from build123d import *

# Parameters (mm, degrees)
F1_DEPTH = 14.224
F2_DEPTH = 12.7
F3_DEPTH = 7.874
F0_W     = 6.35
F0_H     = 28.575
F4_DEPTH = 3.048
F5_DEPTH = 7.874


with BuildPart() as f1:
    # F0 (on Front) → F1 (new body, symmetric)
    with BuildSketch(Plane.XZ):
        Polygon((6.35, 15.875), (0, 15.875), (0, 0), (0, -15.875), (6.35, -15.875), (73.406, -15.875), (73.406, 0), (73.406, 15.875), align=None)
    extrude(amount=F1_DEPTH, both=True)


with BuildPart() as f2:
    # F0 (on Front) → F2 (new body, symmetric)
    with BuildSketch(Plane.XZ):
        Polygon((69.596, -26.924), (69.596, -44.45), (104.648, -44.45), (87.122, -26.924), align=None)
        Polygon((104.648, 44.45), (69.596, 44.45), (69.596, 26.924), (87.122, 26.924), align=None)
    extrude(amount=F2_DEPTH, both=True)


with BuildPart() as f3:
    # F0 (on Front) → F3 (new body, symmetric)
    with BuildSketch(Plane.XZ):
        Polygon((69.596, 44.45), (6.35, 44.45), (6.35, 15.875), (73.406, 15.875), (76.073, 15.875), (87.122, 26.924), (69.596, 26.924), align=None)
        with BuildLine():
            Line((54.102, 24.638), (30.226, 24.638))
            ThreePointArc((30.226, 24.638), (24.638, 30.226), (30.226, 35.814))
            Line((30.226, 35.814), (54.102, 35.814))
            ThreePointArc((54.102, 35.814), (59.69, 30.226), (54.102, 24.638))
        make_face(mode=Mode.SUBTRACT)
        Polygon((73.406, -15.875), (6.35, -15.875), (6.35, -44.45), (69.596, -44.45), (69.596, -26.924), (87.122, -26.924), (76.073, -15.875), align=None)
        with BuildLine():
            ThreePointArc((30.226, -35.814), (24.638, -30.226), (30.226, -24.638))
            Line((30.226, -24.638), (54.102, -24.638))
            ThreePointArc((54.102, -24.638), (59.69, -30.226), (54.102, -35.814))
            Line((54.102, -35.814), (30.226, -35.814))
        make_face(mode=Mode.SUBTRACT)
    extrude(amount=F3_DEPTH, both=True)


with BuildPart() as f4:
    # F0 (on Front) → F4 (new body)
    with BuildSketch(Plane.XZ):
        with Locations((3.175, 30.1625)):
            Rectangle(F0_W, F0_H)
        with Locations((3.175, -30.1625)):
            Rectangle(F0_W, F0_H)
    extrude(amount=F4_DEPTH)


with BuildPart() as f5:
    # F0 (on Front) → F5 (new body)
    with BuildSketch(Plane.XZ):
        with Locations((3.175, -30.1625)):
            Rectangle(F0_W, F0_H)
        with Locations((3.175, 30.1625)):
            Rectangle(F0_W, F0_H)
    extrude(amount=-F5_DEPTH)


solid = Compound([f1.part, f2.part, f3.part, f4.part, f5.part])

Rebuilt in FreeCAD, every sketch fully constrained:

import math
import FreeCAD as App
import Part
import Sketcher
Q = App.Units.Quantity

doc = App.newDocument("Part")
params = doc.addObject("Spreadsheet::Sheet", "Params")
for row, (alias, value) in enumerate([
    ("sketch1_width", "2.89 in"),
    ("sketch1_height", "1.25 in"),
    ("pad1_length", "1.12 in"),
    ("sketch2_width", "1.38 in"),
    ("pad2_length", "1 in"),
    ("sketch3_radius", "0.22 in"),
    ("sketch3_width", "2.49 in"),
    ("sketch3_width2", "0.69 in"),
    ("sketch3_width3", "0.94 in"),
    ("sketch3_width4", "2.745 in"),
    ("pad3_length", "0.62 in"),
    ("sketch4_width", "0.25 in"),
    ("sketch4_height", "1.125 in"),
    ("pad4_length", "0.12 in"),
    ("sketch5_width", "0.25 in"),
    ("sketch5_height", "1.125 in"),
    ("pad5_length", "0.31 in"),
], start=1):
    params.set(f"A{row}", alias)
    params.set(f"B{row}", "=" + value)
    params.setAlias(f"B{row}", alias)

body = doc.addObject("PartDesign::Body", "Body")

# Sketch on XZ plane
sketch1 = body.newObject("Sketcher::SketchObject", "Sketch")
sketch1.AttachmentSupport = (doc.getObject("XZ_Plane"), [""])
sketch1.MapMode = "FlatFace"
sketch1.addGeometry([
    Part.LineSegment(App.Vector(0, 16, 0), App.Vector(0, -16, 0)),
    Part.LineSegment(App.Vector(0, -16, 0), App.Vector(73, -16, 0)),
    Part.LineSegment(App.Vector(73, -16, 0), App.Vector(73, 16, 0)),
    Part.LineSegment(App.Vector(73, 16, 0), App.Vector(0, 16, 0)),
], False)
sketch1.addConstraint([
    Sketcher.Constraint("Coincident", 0, 2, 1, 1),
    Sketcher.Constraint("Coincident", 1, 2, 2, 1),
    Sketcher.Constraint("Coincident", 2, 2, 3, 1),
    Sketcher.Constraint("Coincident", 3, 2, 0, 1),
    Sketcher.Constraint("Vertical", 0),
    Sketcher.Constraint("Horizontal", 1),
    Sketcher.Constraint("Vertical", 2),
    Sketcher.Constraint("Horizontal", 3),
    Sketcher.Constraint("Symmetric", 0, 2, 3, 2, -1, 1),
    Sketcher.Constraint("DistanceX", 1, 1, 1, 2, Q("2.89 in")),
    Sketcher.Constraint("DistanceY", 0, 2, 0, 1, Q("1.25 in")),
])
sketch1.setExpression("Constraints[9]", "Params.sketch1_width")
sketch1.setExpression("Constraints[10]", "Params.sketch1_height")
pad1 = body.newObject("PartDesign::Pad", "Pad")
pad1.Profile = sketch1
pad1.setExpression("Length", "Params.pad1_length")
pad1.Midplane = True
body2 = doc.addObject("PartDesign::Body", "Body001")
body2.AllowCompound = True

# Sketch on XZ plane
sketch2 = body2.newObject("Sketcher::SketchObject", "Sketch001")
sketch2.AttachmentSupport = (doc.getObject("XZ_Plane001"), [""])
sketch2.MapMode = "FlatFace"
sketch2.addGeometry([
    Part.LineSegment(App.Vector(70, -27, 0), App.Vector(70, -44, 0)),  # 0
    Part.LineSegment(App.Vector(70, -44, 0), App.Vector(105, -44, 0)),  # 1
    Part.LineSegment(App.Vector(105, -44, 0), App.Vector(87, -27, 0)),  # 2
    Part.LineSegment(App.Vector(87, -27, 0), App.Vector(70, -27, 0)),  # 3
    Part.LineSegment(App.Vector(105, 44, 0), App.Vector(70, 44, 0)),  # 4
    Part.LineSegment(App.Vector(70, 44, 0), App.Vector(70, 27, 0)),  # 5
    Part.LineSegment(App.Vector(70, 27, 0), App.Vector(87, 27, 0)),  # 6
    Part.LineSegment(App.Vector(87, 27, 0), App.Vector(105, 44, 0)),  # 7
], False)
sketch2.addConstraint([
    Sketcher.Constraint("Coincident", 0, 2, 1, 1),
    Sketcher.Constraint("Coincident", 1, 2, 2, 1),
    Sketcher.Constraint("Coincident", 2, 2, 3, 1),
    Sketcher.Constraint("Coincident", 3, 2, 0, 1),
    Sketcher.Constraint("Coincident", 4, 2, 5, 1),
    Sketcher.Constraint("Coincident", 5, 2, 6, 1),
    Sketcher.Constraint("Coincident", 6, 2, 7, 1),
    Sketcher.Constraint("Coincident", 7, 2, 4, 1),
    Sketcher.Constraint("Vertical", 0),
    Sketcher.Constraint("Horizontal", 1),
    Sketcher.Constraint("Horizontal", 3),
    Sketcher.Constraint("Horizontal", 4),
    Sketcher.Constraint("Vertical", 5),
    Sketcher.Constraint("Horizontal", 6),
    Sketcher.Constraint("Symmetric", 0, 2, 4, 2, -1),
    Sketcher.Constraint("Symmetric", 2, 2, 6, 2, -1),
    Sketcher.Constraint("Perpendicular", 2, 7),
    Sketcher.Constraint("Vertical", 1, 2, 7, 2),
    Sketcher.Constraint("Equal", 6, 0),
    Sketcher.Constraint("DistanceX", 1, 1, 1, 2, Q("1.38 in")),
    Sketcher.Constraint("DistanceY", 0, 2, 4, 2, Q("3.5 in")),
    Sketcher.Constraint("DistanceX", -1, 1, 0, 2, Q("2.74 in")),
])
sketch2.setExpression("Constraints[19]", "Params.sketch2_width")
pad2 = body2.newObject("PartDesign::Pad", "Pad001")
pad2.Profile = sketch2
pad2.setExpression("Length", "Params.pad2_length")
pad2.Midplane = True
body3 = doc.addObject("PartDesign::Body", "Body002")
body3.AllowCompound = True

# Sketch on XZ plane
sketch3 = body3.newObject("Sketcher::SketchObject", "Sketch002")
sketch3.AttachmentSupport = (doc.getObject("XZ_Plane002"), [""])
sketch3.MapMode = "FlatFace"
sketch3.addGeometry([
    Part.LineSegment(App.Vector(70, 44, 0), App.Vector(6, 44, 0)),  # 0
    Part.LineSegment(App.Vector(6, 44, 0), App.Vector(6, 16, 0)),  # 1
    Part.LineSegment(App.Vector(6, 16, 0), App.Vector(76, 16, 0)),  # 2
    Part.LineSegment(App.Vector(76, 16, 0), App.Vector(87, 27, 0)),  # 3
    Part.LineSegment(App.Vector(87, 27, 0), App.Vector(70, 27, 0)),  # 4
    Part.LineSegment(App.Vector(70, 27, 0), App.Vector(70, 44, 0)),  # 5
    Part.ArcOfCircle(Part.Circle(App.Vector(54, 30, 0), App.Vector(0, 0, 1), 6), math.radians(-90), math.radians(90)),  # 6
    Part.LineSegment(App.Vector(54, 25, 0), App.Vector(30, 25, 0)),  # 7
    Part.ArcOfCircle(Part.Circle(App.Vector(30, 30, 0), App.Vector(0, 0, 1), 6), math.radians(90), math.radians(270)),  # 8
    Part.LineSegment(App.Vector(30, 36, 0), App.Vector(54, 36, 0)),  # 9
    Part.LineSegment(App.Vector(6, -16, 0), App.Vector(6, -44, 0)),  # 10
    Part.LineSegment(App.Vector(6, -44, 0), App.Vector(70, -44, 0)),  # 11
    Part.LineSegment(App.Vector(70, -44, 0), App.Vector(70, -27, 0)),  # 12
    Part.LineSegment(App.Vector(70, -27, 0), App.Vector(87, -27, 0)),  # 13
    Part.LineSegment(App.Vector(87, -27, 0), App.Vector(76, -16, 0)),  # 14
    Part.LineSegment(App.Vector(76, -16, 0), App.Vector(6, -16, 0)),  # 15
    Part.LineSegment(App.Vector(54, -36, 0), App.Vector(30, -36, 0)),  # 16
    Part.ArcOfCircle(Part.Circle(App.Vector(30, -30, 0), App.Vector(0, 0, 1), 6), math.radians(90), math.radians(270)),  # 17
    Part.LineSegment(App.Vector(30, -25, 0), App.Vector(54, -25, 0)),  # 18
    Part.ArcOfCircle(Part.Circle(App.Vector(54, -30, 0), App.Vector(0, 0, 1), 6), math.radians(-90), math.radians(90)),  # 19
], False)
sketch3.addConstraint([
    Sketcher.Constraint("Coincident", 0, 2, 1, 1),
    Sketcher.Constraint("Coincident", 1, 2, 2, 1),
    Sketcher.Constraint("Coincident", 2, 2, 3, 1),
    Sketcher.Constraint("Coincident", 3, 2, 4, 1),
    Sketcher.Constraint("Coincident", 4, 2, 5, 1),
    Sketcher.Constraint("Coincident", 5, 2, 0, 1),
    Sketcher.Constraint("Tangent", 6, 1, 7, 1),
    Sketcher.Constraint("Tangent", 7, 2, 8, 2),
    Sketcher.Constraint("Tangent", 8, 1, 9, 1),
    Sketcher.Constraint("Tangent", 9, 2, 6, 2),
    Sketcher.Constraint("Coincident", 10, 2, 11, 1),
    Sketcher.Constraint("Coincident", 11, 2, 12, 1),
    Sketcher.Constraint("Coincident", 12, 2, 13, 1),
    Sketcher.Constraint("Coincident", 13, 2, 14, 1),
    Sketcher.Constraint("Coincident", 14, 2, 15, 1),
    Sketcher.Constraint("Coincident", 15, 2, 10, 1),
    Sketcher.Constraint("Tangent", 16, 2, 17, 2),
    Sketcher.Constraint("Tangent", 17, 1, 18, 1),
    Sketcher.Constraint("Tangent", 18, 2, 19, 2),
    Sketcher.Constraint("Tangent", 19, 1, 16, 1),
    Sketcher.Constraint("Horizontal", 0),
    Sketcher.Constraint("Vertical", 1),
    Sketcher.Constraint("Horizontal", 2),
    Sketcher.Constraint("Horizontal", 4),
    Sketcher.Constraint("Vertical", 5),
    Sketcher.Constraint("Horizontal", 7),
    Sketcher.Constraint("Horizontal", 9),
    Sketcher.Constraint("Vertical", 10),
    Sketcher.Constraint("Horizontal", 11),
    Sketcher.Constraint("Vertical", 12),
    Sketcher.Constraint("Horizontal", 13),
    Sketcher.Constraint("Horizontal", 15),
    Sketcher.Constraint("Horizontal", 16),
    Sketcher.Constraint("Horizontal", 18),
    Sketcher.Constraint("Equal", 8, 17),
    Sketcher.Constraint("Symmetric", 8, 3, 17, 3, -1),
    Sketcher.Constraint("Symmetric", 0, 2, 10, 2, -1),
    Sketcher.Constraint("Symmetric", 4, 2, 12, 2, -1),
    Sketcher.Constraint("Symmetric", 2, 2, 14, 2, -1),
    Sketcher.Constraint("Perpendicular", 3, 14),
    Sketcher.Constraint("Vertical", 6, 3, 19, 3),
    Sketcher.Constraint("Vertical", 3, 2, 13, 2),
    Sketcher.Constraint("Equal", 13, 5),
    Sketcher.Constraint("Radius", 6, Q("0.22 in")),
    Sketcher.Constraint("DistanceX", 0, 2, 0, 1, Q("2.49 in")),
    Sketcher.Constraint("DistanceX", 4, 2, 4, 1, Q("0.69 in")),
    Sketcher.Constraint("DistanceX", 7, 2, 7, 1, Q("0.94 in")),
    Sketcher.Constraint("DistanceX", 6, 3, 3, 2, Q("1.3 in")),
    Sketcher.Constraint("DistanceX", 2, 1, 2, 2, Q("2.745 in")),
    Sketcher.Constraint("DistanceX", -1, 1, 6, 3, Q("2.13 in")),
    Sketcher.Constraint("DistanceY", -1, 1, 6, 3, Q("1.19 in")),
    Sketcher.Constraint("DistanceY", -1, 1, 0, 2, Q("1.75 in")),
])
sketch3.setExpression("Constraints[43]", "Params.sketch3_radius")
sketch3.setExpression("Constraints[44]", "Params.sketch3_width")
sketch3.setExpression("Constraints[45]", "Params.sketch3_width2")
sketch3.setExpression("Constraints[46]", "Params.sketch3_width3")
sketch3.setExpression("Constraints[48]", "Params.sketch3_width4")
pad3 = body3.newObject("PartDesign::Pad", "Pad002")
pad3.Profile = sketch3
pad3.setExpression("Length", "Params.pad3_length")
pad3.Midplane = True
body4 = doc.addObject("PartDesign::Body", "Body003")
body4.AllowCompound = True

# Sketch on XZ plane
sketch4 = body4.newObject("Sketcher::SketchObject", "Sketch003")
sketch4.AttachmentSupport = (doc.getObject("XZ_Plane003"), [""])
sketch4.MapMode = "FlatFace"
sketch4.addGeometry([
    Part.LineSegment(App.Vector(0, 44, 0), App.Vector(0, 16, 0)),  # 0
    Part.LineSegment(App.Vector(0, 16, 0), App.Vector(6, 16, 0)),  # 1
    Part.LineSegment(App.Vector(6, 16, 0), App.Vector(6, 44, 0)),  # 2
    Part.LineSegment(App.Vector(6, 44, 0), App.Vector(0, 44, 0)),  # 3
    Part.LineSegment(App.Vector(0, -16, 0), App.Vector(0, -44, 0)),  # 4
    Part.LineSegment(App.Vector(0, -44, 0), App.Vector(6, -44, 0)),  # 5
    Part.LineSegment(App.Vector(6, -44, 0), App.Vector(6, -16, 0)),  # 6
    Part.LineSegment(App.Vector(6, -16, 0), App.Vector(0, -16, 0)),  # 7
], False)
sketch4.addConstraint([
    Sketcher.Constraint("Coincident", 0, 2, 1, 1),
    Sketcher.Constraint("Coincident", 1, 2, 2, 1),
    Sketcher.Constraint("Coincident", 2, 2, 3, 1),
    Sketcher.Constraint("Coincident", 3, 2, 0, 1),
    Sketcher.Constraint("Coincident", 4, 2, 5, 1),
    Sketcher.Constraint("Coincident", 5, 2, 6, 1),
    Sketcher.Constraint("Coincident", 6, 2, 7, 1),
    Sketcher.Constraint("Coincident", 7, 2, 4, 1),
    Sketcher.Constraint("Vertical", 0),
    Sketcher.Constraint("Horizontal", 1),
    Sketcher.Constraint("Vertical", 2),
    Sketcher.Constraint("Horizontal", 3),
    Sketcher.Constraint("Vertical", 4),
    Sketcher.Constraint("Horizontal", 5),
    Sketcher.Constraint("Vertical", 6),
    Sketcher.Constraint("Horizontal", 7),
    Sketcher.Constraint("Symmetric", 3, 2, 4, 2, -1, 1),
    Sketcher.Constraint("Symmetric", 1, 2, 6, 2, -1),
    Sketcher.Constraint("PointOnObject", 0, 2, -2),
    Sketcher.Constraint("DistanceX", 1, 1, 1, 2, Q("0.25 in")),
    Sketcher.Constraint("DistanceY", 4, 2, 3, 2, Q("3.5 in")),
    Sketcher.Constraint("DistanceY", 0, 2, 0, 1, Q("1.125 in")),
])
sketch4.setExpression("Constraints[19]", "Params.sketch4_width")
sketch4.setExpression("Constraints[21]", "Params.sketch4_height")
pad4 = body4.newObject("PartDesign::Pad", "Pad003")
pad4.Profile = sketch4
pad4.setExpression("Length", "Params.pad4_length")
body5 = doc.addObject("PartDesign::Body", "Body004")
body5.AllowCompound = True

# Sketch on XZ plane
sketch5 = body5.newObject("Sketcher::SketchObject", "Sketch004")
sketch5.AttachmentSupport = (doc.getObject("XZ_Plane004"), [""])
sketch5.MapMode = "FlatFace"
sketch5.addGeometry([
    Part.LineSegment(App.Vector(0, -16, 0), App.Vector(0, -44, 0)),  # 0
    Part.LineSegment(App.Vector(0, -44, 0), App.Vector(6, -44, 0)),  # 1
    Part.LineSegment(App.Vector(6, -44, 0), App.Vector(6, -16, 0)),  # 2
    Part.LineSegment(App.Vector(6, -16, 0), App.Vector(0, -16, 0)),  # 3
    Part.LineSegment(App.Vector(0, 44, 0), App.Vector(0, 16, 0)),  # 4
    Part.LineSegment(App.Vector(0, 16, 0), App.Vector(6, 16, 0)),  # 5
    Part.LineSegment(App.Vector(6, 16, 0), App.Vector(6, 44, 0)),  # 6
    Part.LineSegment(App.Vector(6, 44, 0), App.Vector(0, 44, 0)),  # 7
], False)
sketch5.addConstraint([
    Sketcher.Constraint("Coincident", 0, 2, 1, 1),
    Sketcher.Constraint("Coincident", 1, 2, 2, 1),
    Sketcher.Constraint("Coincident", 2, 2, 3, 1),
    Sketcher.Constraint("Coincident", 3, 2, 0, 1),
    Sketcher.Constraint("Coincident", 4, 2, 5, 1),
    Sketcher.Constraint("Coincident", 5, 2, 6, 1),
    Sketcher.Constraint("Coincident", 6, 2, 7, 1),
    Sketcher.Constraint("Coincident", 7, 2, 4, 1),
    Sketcher.Constraint("Vertical", 0),
    Sketcher.Constraint("Horizontal", 1),
    Sketcher.Constraint("Vertical", 2),
    Sketcher.Constraint("Horizontal", 3),
    Sketcher.Constraint("Vertical", 4),
    Sketcher.Constraint("Horizontal", 5),
    Sketcher.Constraint("Vertical", 6),
    Sketcher.Constraint("Horizontal", 7),
    Sketcher.Constraint("Symmetric", 3, 2, 4, 2, -1, 1),
    Sketcher.Constraint("Symmetric", 1, 2, 6, 2, -1),
    Sketcher.Constraint("PointOnObject", 0, 2, -2),
    Sketcher.Constraint("DistanceX", 1, 1, 1, 2, Q("0.25 in")),
    Sketcher.Constraint("DistanceY", 1, 2, 6, 2, Q("3.5 in")),
    Sketcher.Constraint("DistanceY", 0, 2, 0, 1, Q("1.125 in")),
])
sketch5.setExpression("Constraints[19]", "Params.sketch5_width")
sketch5.setExpression("Constraints[21]", "Params.sketch5_height")
pad5 = body5.newObject("PartDesign::Pad", "Pad004")
pad5.Profile = sketch5
pad5.setExpression("Length", "Params.pad5_length")
pad5.Reversed = True

doc.recompute()
